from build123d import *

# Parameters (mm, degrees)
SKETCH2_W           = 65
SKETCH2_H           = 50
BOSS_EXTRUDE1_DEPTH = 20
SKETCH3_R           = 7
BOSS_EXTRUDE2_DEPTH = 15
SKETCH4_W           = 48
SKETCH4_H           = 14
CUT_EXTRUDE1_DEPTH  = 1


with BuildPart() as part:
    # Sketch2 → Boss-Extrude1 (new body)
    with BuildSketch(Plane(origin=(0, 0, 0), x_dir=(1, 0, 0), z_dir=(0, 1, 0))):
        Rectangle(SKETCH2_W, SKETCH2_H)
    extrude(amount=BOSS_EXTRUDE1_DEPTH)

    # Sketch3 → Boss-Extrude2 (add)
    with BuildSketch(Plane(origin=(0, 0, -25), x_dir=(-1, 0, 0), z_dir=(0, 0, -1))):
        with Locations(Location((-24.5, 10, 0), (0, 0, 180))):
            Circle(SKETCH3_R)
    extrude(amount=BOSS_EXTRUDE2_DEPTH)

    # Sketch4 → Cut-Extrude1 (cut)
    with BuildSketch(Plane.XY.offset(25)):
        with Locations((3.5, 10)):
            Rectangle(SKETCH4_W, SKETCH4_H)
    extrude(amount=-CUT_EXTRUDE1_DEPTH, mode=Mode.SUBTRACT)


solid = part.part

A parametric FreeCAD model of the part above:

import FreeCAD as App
import Part
import Sketcher


def add_polygon(sketch, points):
    """Adds a closed chain of lines whose ends are joined by coincident constraints."""
    first, n = sketch.GeometryCount, len(points)
    for a, b in zip(points, points[1:] + points[:1]):
        sketch.addGeometry(Part.LineSegment(App.Vector(*a, 0), App.Vector(*b, 0)), False)
    for i in range(n):
        sketch.addConstraint(Sketcher.Constraint("Coincident", first + i, 2, first + (i + 1) % n, 1))

doc = App.newDocument("Part")
body = doc.addObject("PartDesign::Body", "Body")

sketch1 = doc.addObject("Sketcher::SketchObject", "Sketch")
body.addObject(sketch1)
sketch1.AttachmentSupport = (doc.XZ_Plane, [""])
sketch1.MapMode = "FlatFace"
add_polygon(sketch1, [(-32, -25), (-32, 25), (32, 25), (32, -25)])
sketch1.addConstraint([
    Sketcher.Constraint("Vertical", 0),
    Sketcher.Constraint("Horizontal", 1),
    Sketcher.Constraint("Vertical", 2),
    Sketcher.Constraint("Horizontal", 3),
    Sketcher.Constraint("Symmetric", 0, 2, 2, 2, -1, 1),
    Sketcher.Constraint("DistanceX", 1, 1, 1, 2, 65.0),
    Sketcher.Constraint("DistanceY", 0, 1, 0, 2, 50.0),
])
pad1 = doc.addObject("PartDesign::Pad", "Pad")
body.addObject(pad1)
pad1.Profile = sketch1
pad1.Length = 20
pad1.Reversed = True

sketch2 = doc.addObject("Sketcher::SketchObject", "Sketch001")
body.addObject(sketch2)
sketch2.AttachmentSupport = (doc.XY_Plane, [""])
sketch2.MapMode = "FlatFace"
sketch2.AttachmentOffset = App.Placement(App.Vector(0, 0, -25), App.Rotation())
sketch2.addGeometry(Part.Circle(App.Vector(24, 10, 0), App.Vector(0, 0, 1), 7), False)
sketch2.addConstraint([
    Sketcher.Constraint("Diameter", 0, 14.0),
    Sketcher.Constraint("DistanceY", -1, 1, 0, 3, 10.0),
    Sketcher.Constraint("DistanceX", -1, 1, 0, 3, 24.5),
])
pad2 = doc.addObject("PartDesign::Pad", "Pad001")
body.addObject(pad2)
pad2.Profile = sketch2
pad2.Length = 15
pad2.Reversed = True

sketch3 = doc.addObject("Sketcher::SketchObject", "Sketch002")
body.addObject(sketch3)
sketch3.AttachmentSupport = (doc.XY_Plane, [""])
sketch3.MapMode = "FlatFace"
sketch3.AttachmentOffset = App.Placement(App.Vector(0, 0, 25), App.Rotation())
add_polygon(sketch3, [(-20, 17), (-20, 3), (28, 3), (28, 17)])
sketch3.addConstraint([
    Sketcher.Constraint("Vertical", 0),
    Sketcher.Constraint("Horizontal", 1),
    Sketcher.Constraint("Vertical", 2),
    Sketcher.Constraint("Horizontal", 3),
    Sketcher.Constraint("DistanceX", 1, 1, 1, 2, 48.0),
    Sketcher.Constraint("DistanceY", 0, 2, 0, 1, 14.0),
    Sketcher.Constraint("DistanceY", -1, 1, 0, 2, 3.0),
    Sketcher.Constraint("DistanceX", 0, 2, -1, 1, 20.5),
])
pocket1 = doc.addObject("PartDesign::Pocket", "Pocket")
body.addObject(pocket1)
pocket1.Profile = sketch3
pocket1.Length = 1

doc.recompute()
